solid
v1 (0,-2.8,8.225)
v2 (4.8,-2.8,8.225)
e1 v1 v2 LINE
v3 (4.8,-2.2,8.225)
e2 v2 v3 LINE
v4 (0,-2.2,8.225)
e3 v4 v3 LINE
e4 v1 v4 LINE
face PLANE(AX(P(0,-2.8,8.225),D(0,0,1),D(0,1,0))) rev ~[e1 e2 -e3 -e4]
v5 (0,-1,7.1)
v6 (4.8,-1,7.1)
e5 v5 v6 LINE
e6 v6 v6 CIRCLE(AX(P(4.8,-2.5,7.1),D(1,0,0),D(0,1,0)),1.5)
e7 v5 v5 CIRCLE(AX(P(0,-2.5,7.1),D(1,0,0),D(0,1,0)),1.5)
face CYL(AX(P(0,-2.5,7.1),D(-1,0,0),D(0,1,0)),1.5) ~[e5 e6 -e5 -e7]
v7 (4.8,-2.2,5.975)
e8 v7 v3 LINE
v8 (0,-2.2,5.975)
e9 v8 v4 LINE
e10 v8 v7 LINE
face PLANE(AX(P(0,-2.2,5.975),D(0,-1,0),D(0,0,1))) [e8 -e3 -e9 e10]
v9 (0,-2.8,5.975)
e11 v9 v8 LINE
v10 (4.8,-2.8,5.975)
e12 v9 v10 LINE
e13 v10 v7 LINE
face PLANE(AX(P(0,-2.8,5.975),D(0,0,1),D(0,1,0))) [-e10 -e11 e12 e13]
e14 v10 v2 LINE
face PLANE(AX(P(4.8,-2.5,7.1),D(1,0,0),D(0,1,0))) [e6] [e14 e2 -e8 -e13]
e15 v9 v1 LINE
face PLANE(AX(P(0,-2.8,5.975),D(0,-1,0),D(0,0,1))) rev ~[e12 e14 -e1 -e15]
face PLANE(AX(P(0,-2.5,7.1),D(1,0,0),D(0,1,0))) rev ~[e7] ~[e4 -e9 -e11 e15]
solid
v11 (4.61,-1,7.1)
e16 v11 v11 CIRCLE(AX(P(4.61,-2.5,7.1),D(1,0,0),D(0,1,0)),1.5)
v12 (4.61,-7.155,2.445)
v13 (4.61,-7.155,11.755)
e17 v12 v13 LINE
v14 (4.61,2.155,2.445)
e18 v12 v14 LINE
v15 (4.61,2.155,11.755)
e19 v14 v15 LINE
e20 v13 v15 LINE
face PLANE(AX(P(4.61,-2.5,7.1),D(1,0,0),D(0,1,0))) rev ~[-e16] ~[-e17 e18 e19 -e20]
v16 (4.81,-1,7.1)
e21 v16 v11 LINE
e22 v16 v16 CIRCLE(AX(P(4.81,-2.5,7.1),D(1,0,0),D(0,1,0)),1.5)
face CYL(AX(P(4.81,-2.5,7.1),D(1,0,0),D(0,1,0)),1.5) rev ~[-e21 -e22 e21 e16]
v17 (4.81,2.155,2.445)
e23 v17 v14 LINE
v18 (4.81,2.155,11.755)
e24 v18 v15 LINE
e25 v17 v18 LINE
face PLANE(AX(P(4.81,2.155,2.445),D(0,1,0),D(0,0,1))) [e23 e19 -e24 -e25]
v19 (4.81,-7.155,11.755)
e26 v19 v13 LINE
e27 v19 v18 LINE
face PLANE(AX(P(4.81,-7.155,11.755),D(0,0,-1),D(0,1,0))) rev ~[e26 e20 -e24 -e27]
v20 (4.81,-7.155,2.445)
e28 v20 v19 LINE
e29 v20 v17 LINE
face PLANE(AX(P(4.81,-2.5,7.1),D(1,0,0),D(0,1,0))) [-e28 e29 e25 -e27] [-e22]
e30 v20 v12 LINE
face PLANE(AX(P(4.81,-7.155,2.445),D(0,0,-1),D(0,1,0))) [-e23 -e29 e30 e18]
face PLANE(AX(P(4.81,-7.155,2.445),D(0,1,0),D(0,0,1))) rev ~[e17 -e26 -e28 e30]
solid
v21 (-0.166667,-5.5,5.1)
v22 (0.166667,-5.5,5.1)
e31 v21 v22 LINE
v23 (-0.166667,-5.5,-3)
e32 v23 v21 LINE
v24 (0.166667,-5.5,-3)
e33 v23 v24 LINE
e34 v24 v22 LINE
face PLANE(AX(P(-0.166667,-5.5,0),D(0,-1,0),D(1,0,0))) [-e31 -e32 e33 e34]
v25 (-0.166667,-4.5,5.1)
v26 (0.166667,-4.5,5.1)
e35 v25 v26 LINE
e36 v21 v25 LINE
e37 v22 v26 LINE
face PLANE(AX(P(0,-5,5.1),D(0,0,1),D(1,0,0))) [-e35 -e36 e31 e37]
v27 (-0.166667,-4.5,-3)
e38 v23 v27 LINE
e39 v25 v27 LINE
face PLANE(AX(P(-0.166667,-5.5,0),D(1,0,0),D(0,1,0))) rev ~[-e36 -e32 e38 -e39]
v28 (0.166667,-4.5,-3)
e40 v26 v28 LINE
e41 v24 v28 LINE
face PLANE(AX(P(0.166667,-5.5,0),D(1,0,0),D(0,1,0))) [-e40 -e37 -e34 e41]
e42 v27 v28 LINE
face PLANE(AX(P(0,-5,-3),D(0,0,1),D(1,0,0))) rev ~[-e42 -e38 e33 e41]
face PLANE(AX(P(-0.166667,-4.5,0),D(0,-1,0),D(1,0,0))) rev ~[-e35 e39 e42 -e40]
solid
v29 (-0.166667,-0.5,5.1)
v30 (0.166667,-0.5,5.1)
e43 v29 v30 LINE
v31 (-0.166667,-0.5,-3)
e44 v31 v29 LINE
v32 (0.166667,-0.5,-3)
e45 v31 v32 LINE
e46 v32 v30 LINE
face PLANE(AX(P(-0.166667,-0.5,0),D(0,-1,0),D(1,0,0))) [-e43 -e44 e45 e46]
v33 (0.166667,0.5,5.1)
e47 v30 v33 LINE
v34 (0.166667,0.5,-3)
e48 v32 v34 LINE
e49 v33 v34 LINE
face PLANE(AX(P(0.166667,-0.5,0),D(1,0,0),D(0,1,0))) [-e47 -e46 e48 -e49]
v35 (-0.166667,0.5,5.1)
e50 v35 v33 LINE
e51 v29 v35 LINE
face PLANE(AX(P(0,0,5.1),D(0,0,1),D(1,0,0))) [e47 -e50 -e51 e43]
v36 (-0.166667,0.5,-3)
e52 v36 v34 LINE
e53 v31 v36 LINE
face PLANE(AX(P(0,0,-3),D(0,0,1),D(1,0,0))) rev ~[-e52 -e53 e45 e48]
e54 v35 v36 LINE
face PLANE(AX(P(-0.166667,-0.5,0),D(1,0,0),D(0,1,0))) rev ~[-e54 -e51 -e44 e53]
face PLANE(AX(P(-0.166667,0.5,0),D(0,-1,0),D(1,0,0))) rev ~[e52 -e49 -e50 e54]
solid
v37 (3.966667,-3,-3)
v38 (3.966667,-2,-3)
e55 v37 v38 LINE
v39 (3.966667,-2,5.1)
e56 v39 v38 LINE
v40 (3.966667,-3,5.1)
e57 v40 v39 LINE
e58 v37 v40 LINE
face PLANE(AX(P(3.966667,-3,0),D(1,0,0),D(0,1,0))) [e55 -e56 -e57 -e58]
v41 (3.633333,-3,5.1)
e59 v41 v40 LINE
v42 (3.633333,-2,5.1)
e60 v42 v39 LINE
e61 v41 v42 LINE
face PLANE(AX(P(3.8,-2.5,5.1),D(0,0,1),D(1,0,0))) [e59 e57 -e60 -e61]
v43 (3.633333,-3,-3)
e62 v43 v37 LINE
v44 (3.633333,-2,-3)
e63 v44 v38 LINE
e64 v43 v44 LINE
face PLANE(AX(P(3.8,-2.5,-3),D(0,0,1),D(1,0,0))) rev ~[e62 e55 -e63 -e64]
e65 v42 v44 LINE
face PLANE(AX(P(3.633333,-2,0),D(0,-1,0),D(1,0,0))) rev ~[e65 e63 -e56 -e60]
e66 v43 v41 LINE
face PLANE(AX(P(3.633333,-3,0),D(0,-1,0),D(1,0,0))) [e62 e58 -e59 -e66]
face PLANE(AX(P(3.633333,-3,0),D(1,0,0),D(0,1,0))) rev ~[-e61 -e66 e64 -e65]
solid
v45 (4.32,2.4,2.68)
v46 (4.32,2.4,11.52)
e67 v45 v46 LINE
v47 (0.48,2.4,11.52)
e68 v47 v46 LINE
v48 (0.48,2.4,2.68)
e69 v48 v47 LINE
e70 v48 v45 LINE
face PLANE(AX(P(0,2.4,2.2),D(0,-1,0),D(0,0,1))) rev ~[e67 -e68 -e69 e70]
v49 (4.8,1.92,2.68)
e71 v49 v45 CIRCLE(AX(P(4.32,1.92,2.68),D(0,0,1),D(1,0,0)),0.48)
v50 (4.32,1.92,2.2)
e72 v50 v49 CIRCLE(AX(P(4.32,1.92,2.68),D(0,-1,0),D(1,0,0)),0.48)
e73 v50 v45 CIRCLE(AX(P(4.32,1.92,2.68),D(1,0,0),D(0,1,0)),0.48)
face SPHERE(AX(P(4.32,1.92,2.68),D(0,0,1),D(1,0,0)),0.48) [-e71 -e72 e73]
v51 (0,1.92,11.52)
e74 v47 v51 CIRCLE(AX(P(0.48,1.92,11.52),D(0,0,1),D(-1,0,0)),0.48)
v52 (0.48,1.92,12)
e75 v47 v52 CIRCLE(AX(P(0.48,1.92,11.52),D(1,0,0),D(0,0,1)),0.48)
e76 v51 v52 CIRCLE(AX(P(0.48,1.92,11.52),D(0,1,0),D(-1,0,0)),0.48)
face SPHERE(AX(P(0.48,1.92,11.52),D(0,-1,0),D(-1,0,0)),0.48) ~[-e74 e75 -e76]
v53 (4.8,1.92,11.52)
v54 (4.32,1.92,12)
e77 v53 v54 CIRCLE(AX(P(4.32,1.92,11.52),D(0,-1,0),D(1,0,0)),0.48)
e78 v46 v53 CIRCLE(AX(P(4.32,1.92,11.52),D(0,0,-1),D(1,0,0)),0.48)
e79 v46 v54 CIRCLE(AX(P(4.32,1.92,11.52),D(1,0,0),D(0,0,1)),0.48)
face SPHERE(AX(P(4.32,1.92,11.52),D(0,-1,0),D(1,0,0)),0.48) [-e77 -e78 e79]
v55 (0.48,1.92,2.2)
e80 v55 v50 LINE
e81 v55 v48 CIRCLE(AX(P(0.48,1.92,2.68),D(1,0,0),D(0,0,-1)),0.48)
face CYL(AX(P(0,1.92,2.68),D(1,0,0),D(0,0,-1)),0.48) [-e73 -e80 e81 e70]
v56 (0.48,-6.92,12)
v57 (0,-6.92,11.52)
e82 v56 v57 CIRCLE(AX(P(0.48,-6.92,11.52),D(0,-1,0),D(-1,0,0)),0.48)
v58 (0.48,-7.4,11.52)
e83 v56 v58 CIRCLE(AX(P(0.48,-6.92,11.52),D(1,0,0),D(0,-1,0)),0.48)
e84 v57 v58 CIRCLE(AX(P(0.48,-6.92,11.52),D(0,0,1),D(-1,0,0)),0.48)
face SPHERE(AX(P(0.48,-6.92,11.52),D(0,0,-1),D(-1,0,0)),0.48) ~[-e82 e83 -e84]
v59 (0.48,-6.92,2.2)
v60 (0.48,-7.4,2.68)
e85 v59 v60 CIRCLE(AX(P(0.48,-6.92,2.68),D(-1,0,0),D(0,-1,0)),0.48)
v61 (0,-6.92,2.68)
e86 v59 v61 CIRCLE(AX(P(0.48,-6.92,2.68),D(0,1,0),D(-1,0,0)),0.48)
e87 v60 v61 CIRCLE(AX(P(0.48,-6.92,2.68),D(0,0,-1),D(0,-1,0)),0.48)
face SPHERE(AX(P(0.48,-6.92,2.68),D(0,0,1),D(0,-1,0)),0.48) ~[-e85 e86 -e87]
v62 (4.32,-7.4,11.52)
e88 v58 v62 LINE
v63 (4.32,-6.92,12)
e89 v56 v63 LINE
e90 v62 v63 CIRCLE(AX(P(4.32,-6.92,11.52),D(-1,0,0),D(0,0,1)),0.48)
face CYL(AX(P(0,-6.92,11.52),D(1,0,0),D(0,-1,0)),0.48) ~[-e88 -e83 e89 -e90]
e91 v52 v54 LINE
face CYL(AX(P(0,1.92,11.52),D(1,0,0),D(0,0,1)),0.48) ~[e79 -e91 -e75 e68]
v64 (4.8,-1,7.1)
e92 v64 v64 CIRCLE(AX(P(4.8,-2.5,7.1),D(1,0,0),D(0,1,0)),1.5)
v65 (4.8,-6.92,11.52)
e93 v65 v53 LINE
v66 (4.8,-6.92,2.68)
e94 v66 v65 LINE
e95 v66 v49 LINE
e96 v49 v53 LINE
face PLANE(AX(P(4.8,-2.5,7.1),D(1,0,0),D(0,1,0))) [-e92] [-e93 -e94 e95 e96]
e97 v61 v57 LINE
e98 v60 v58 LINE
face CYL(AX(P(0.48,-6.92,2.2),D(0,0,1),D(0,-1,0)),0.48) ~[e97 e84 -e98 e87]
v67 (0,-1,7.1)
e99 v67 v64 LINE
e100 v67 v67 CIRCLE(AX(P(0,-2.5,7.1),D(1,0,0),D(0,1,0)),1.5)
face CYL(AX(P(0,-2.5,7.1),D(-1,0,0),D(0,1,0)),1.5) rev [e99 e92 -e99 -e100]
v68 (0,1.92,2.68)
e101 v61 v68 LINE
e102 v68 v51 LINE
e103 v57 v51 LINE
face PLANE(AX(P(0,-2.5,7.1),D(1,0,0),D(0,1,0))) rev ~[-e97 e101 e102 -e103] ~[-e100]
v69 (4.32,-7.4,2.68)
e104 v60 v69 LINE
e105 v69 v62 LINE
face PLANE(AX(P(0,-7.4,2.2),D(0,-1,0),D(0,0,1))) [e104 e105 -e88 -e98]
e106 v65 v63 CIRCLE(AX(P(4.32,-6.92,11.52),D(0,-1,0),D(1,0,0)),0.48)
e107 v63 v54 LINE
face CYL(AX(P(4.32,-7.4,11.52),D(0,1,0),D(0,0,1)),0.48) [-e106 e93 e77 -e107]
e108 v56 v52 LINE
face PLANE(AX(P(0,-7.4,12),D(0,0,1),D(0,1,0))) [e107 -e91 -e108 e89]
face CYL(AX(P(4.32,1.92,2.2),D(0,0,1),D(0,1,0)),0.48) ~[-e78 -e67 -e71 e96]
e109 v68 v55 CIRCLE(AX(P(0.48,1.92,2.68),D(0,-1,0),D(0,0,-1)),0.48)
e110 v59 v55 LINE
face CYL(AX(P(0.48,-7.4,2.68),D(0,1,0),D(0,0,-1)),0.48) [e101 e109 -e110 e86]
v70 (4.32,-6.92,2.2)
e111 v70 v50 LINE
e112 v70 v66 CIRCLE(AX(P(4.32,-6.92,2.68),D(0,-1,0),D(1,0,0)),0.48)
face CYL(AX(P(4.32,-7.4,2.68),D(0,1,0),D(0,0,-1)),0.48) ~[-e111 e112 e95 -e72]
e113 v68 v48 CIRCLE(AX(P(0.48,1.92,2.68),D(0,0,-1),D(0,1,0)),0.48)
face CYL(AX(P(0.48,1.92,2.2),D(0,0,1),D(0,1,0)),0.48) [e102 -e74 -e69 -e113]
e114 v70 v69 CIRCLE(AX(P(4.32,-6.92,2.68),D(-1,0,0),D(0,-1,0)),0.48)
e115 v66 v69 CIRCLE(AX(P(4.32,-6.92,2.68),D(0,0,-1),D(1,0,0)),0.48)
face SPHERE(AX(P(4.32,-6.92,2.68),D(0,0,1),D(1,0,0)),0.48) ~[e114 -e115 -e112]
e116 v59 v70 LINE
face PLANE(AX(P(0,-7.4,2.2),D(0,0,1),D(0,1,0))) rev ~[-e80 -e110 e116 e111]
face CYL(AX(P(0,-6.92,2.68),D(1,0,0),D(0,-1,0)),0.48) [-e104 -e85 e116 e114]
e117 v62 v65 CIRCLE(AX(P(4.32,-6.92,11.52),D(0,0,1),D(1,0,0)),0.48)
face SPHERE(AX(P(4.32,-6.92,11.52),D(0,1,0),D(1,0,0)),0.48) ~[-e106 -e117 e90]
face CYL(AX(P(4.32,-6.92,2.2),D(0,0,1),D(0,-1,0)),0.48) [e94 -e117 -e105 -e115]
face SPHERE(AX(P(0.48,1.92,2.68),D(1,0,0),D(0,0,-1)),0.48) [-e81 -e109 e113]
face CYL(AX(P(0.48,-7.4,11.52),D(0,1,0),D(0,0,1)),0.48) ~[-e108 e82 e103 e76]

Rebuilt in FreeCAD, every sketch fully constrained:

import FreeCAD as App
import Part
import Sketcher
from FreeCAD import Vector
Q = App.Units.Quantity


def edges_at(feature, points):
    """Names of the edges that pass closest to the given points."""
    edges = feature.Shape.Edges
    near = lambda p: min(range(len(edges)), key=lambda i: edges[i].distToShape(Part.Vertex(*p))[0])
    return sorted({f"Edge{near(p) + 1}" for p in points})


def add_polygon(sketch, points):
    """Adds a closed chain of lines whose ends are joined by coincident constraints."""
    first, n = sketch.GeometryCount, len(points)
    for a, b in zip(points, points[1:] + points[:1]):
        sketch.addGeometry(Part.LineSegment(App.Vector(*a, 0), App.Vector(*b, 0)), False)
    for i in range(n):
        sketch.addConstraint(Sketcher.Constraint("Coincident", first + i, 2, first + (i + 1) % n, 1))

doc = App.newDocument("Part")
params = doc.addObject("Spreadsheet::Sheet", "Params")
for row, (alias, value) in enumerate([
    ("sketch1_diameter", "3 mm"),
    ("sketch1_width", "0.6 mm"),
    ("sketch1_height", "2.25 mm"),
    ("pad1_length", "4.8 mm"),
    ("sketch2_height", "1 mm"),
    ("pad2_length", "5.1 mm"),
    ("pad2_length2", "3 mm"),
    ("sketch3_diameter", "3 mm"),
    ("sketch3_width", "9.31 mm"),
    ("pad3_length", "0.2 mm"),
    ("sketch4_diameter", "3 mm"),
    ("sketch4_width", "9.8 mm"),
    ("pad4_length", "4.8 mm"),
    ("fillet_radius", "0.48 mm"),
], start=1):
    params.set(f"A{row}", alias)
    params.set(f"B{row}", "=" + value)
    params.setAlias(f"B{row}", alias)

body = doc.addObject("PartDesign::Body", "Body")

sketch1 = body.newObject("Sketcher::SketchObject", "Sketch")
sketch1.AttachmentSupport = (doc.getObject("YZ_Plane"), [""])
sketch1.MapMode = "FlatFace"
sketch1.addGeometry(Part.Circle(Vector(-2.5, 7.1, 0), Vector(0, 0, 1), 1.5), False)
add_polygon(sketch1, [(-2.2, 6), (-2.8, 6), (-2.8, 8.2), (-2.2, 8.2)])
sketch1.addConstraint([
    Sketcher.Constraint("Horizontal", 1),
    Sketcher.Constraint("Vertical", 2),
    Sketcher.Constraint("Horizontal", 3),
    Sketcher.Constraint("Vertical", 4),
    Sketcher.Constraint("Diameter", 0, Q("3 mm")),
    Sketcher.Constraint("DistanceX", 1, 2, 1, 1, Q("0.6 mm")),
    Sketcher.Constraint("DistanceY", 2, 1, 2, 2, Q("2.25 mm")),
    Sketcher.Constraint("DistanceX", 0, 3, -1, 1, Q("2.5 mm")),
    Sketcher.Constraint("DistanceY", -1, 1, 0, 3, Q("7.1 mm")),
    Sketcher.Constraint("DistanceX", 1, 2, -1, 1, Q("2.8 mm")),
    Sketcher.Constraint("DistanceY", -1, 1, 1, 2, Q("5.975 mm")),
])
sketch1.setExpression("Constraints[8]", "Params.sketch1_diameter")
sketch1.setExpression("Constraints[9]", "Params.sketch1_width")
sketch1.setExpression("Constraints[10]", "Params.sketch1_height")
pad1 = body.newObject("PartDesign::Pad", "Pad")
pad1.Profile = sketch1
pad1.setExpression("Length", "Params.pad1_length")
body2 = doc.addObject("PartDesign::Body", "Body001")
body2.AllowCompound = True

sketch2 = body2.newObject("Sketcher::SketchObject", "Sketch001")
sketch2.AttachmentSupport = (doc.getObject("XY_Plane001"), [""])
sketch2.MapMode = "FlatFace"
add_polygon(sketch2, [(-0.17, 0.5), (-0.17, -0.5), (0.17, -0.5), (0.17, 0.5)])
add_polygon(sketch2, [(3.63, -2), (3.63, -3), (3.97, -3), (3.97, -2)])
add_polygon(sketch2, [(-0.17, -4.5), (-0.17, -5.5), (0.17, -5.5), (0.17, -4.5)])
sketch2.addConstraint([
    Sketcher.Constraint("Vertical", 0),
    Sketcher.Constraint("Horizontal", 1),
    Sketcher.Constraint("Vertical", 2),
    Sketcher.Constraint("Horizontal", 3),
    Sketcher.Constraint("Vertical", 4),
    Sketcher.Constraint("Horizontal", 5),
    Sketcher.Constraint("Vertical", 6),
    Sketcher.Constraint("Horizontal", 7),
    Sketcher.Constraint("Vertical", 8),
    Sketcher.Constraint("Horizontal", 9),
    Sketcher.Constraint("Vertical", 10),
    Sketcher.Constraint("Horizontal", 11),
    Sketcher.Constraint("Symmetric", 0, 2, 2, 2, -1, 1),
    Sketcher.Constraint("Vertical", 3, 2, 8, 2),
    Sketcher.Constraint("Vertical", 2, 2, 9, 2),
    Sketcher.Constraint("Equal", 3, 5),
    Sketcher.Constraint("Equal", 2, 4),
    Sketcher.Constraint("Equal", 6, 8),
    Sketcher.Constraint("DistanceY", 0, 2, 0, 1, Q("1 mm")),
    Sketcher.Constraint("DistanceY", 4, 2, -1, 1, Q("3 mm")),
    Sketcher.Constraint("DistanceY", 8, 2, 0, 2, Q("5 mm")),
    Sketcher.Constraint("DistanceX", 0, 2, 4, 2, Q("3.8 mm")),
    Sketcher.Constraint("DistanceX", 1, 1, 1, 2, Q("0.333334 mm")),
])
sketch2.setExpression("Constraints[30]", "Params.sketch2_height")
pad2 = body2.newObject("PartDesign::Pad", "Pad001")
pad2.Profile = sketch2
pad2.Type = "TwoLengths"
pad2.setExpression("Length", "Params.pad2_length")
pad2.setExpression("Length2", "Params.pad2_length2")
body3 = doc.addObject("PartDesign::Body", "Body002")

sketch3 = body3.newObject("Sketcher::SketchObject", "Sketch002")
sketch3.AttachmentSupport = (doc.getObject("YZ_Plane002"), [""])
sketch3.MapMode = "FlatFace"
sketch3.AttachmentOffset = App.Placement(Vector(0, 0, 4.81), App.Rotation())
add_polygon(sketch3, [(-7.2, 11.8), (-7.2, 2.4), (2.2, 2.4), (2.2, 11.8)])
sketch3.addGeometry(Part.Circle(Vector(-2.5, 7.1, 0), Vector(0, 0, 1), 1.5), False)
sketch3.addConstraint([
    Sketcher.Constraint("Vertical", 0),
    Sketcher.Constraint("Horizontal", 1),
    Sketcher.Constraint("Vertical", 2),
    Sketcher.Constraint("Horizontal", 3),
    Sketcher.Constraint("Equal", 3, 0),
    Sketcher.Constraint("Diameter", 4, Q("3 mm")),
    Sketcher.Constraint("DistanceX", 1, 1, 1, 2, Q("9.31 mm")),
    Sketcher.Constraint("DistanceX", 4, 3, -1, 1, Q("2.5 mm")),
    Sketcher.Constraint("DistanceY", -1, 1, 4, 3, Q("7.1 mm")),
    Sketcher.Constraint("DistanceX", 0, 2, -1, 1, Q("7.155 mm")),
    Sketcher.Constraint("DistanceY", -1, 1, 0, 2, Q("2.445 mm")),
])
sketch3.setExpression("Constraints[9]", "Params.sketch3_diameter")
sketch3.setExpression("Constraints[10]", "Params.sketch3_width")
pad3 = body3.newObject("PartDesign::Pad", "Pad002")
pad3.Profile = sketch3
pad3.setExpression("Length", "Params.pad3_length")
pad3.Reversed = True
body4 = doc.addObject("PartDesign::Body", "Body003")

sketch4 = body4.newObject("Sketcher::SketchObject", "Sketch003")
sketch4.AttachmentSupport = (doc.getObject("YZ_Plane003"), [""])
sketch4.MapMode = "FlatFace"
add_polygon(sketch4, [(-7.4, 12), (-7.4, 2.2), (2.4, 2.2), (2.4, 12)])
sketch4.addGeometry(Part.Circle(Vector(-2.5, 7.1, 0), Vector(0, 0, 1), 1.5), False)
sketch4.addConstraint([
    Sketcher.Constraint("Vertical", 0),
    Sketcher.Constraint("Horizontal", 1),
    Sketcher.Constraint("Vertical", 2),
    Sketcher.Constraint("Horizontal", 3),
    Sketcher.Constraint("Equal", 3, 0),
    Sketcher.Constraint("Diameter", 4, Q("3 mm")),
    Sketcher.Constraint("DistanceX", 1, 1, 1, 2, Q("9.8 mm")),
    Sketcher.Constraint("DistanceY", -1, 1, 2, 2, Q("12 mm")),
    Sketcher.Constraint("DistanceX", 4, 3, -1, 1, Q("2.5 mm")),
    Sketcher.Constraint("DistanceY", -1, 1, 4, 3, Q("7.1 mm")),
    Sketcher.Constraint("DistanceX", 0, 2, -1, 1, Q("7.4 mm")),
])
sketch4.setExpression("Constraints[9]", "Params.sketch4_diameter")
sketch4.setExpression("Constraints[10]", "Params.sketch4_width")
pad4 = body4.newObject("PartDesign::Pad", "Pad003")
pad4.Profile = sketch4
pad4.setExpression("Length", "Params.pad4_length")
doc.recompute()

fillet = body4.newObject("PartDesign::Fillet", "Fillet")
fillet.Base = (pad4, edges_at(pad4, [
    (0, -7.4, 7.1),
    (0, -2.5, 12),
    (4.8, -2.5, 12),
    (4.8, -7.4, 7.1),
    (4.8, 2.4, 7.1),
    (4.8, -2.5, 2.2),
    (2.4, -7.4, 12),
    (2.4, -7.4, 2.2),
    (2.4, 2.4, 2.2),
    (0, -2.5, 2.2),
    (0, 2.4, 7.1),
    (2.4, 2.4, 12),
]))
fillet.setExpression("Radius", "Params.fillet_radius")

doc.recompute()
